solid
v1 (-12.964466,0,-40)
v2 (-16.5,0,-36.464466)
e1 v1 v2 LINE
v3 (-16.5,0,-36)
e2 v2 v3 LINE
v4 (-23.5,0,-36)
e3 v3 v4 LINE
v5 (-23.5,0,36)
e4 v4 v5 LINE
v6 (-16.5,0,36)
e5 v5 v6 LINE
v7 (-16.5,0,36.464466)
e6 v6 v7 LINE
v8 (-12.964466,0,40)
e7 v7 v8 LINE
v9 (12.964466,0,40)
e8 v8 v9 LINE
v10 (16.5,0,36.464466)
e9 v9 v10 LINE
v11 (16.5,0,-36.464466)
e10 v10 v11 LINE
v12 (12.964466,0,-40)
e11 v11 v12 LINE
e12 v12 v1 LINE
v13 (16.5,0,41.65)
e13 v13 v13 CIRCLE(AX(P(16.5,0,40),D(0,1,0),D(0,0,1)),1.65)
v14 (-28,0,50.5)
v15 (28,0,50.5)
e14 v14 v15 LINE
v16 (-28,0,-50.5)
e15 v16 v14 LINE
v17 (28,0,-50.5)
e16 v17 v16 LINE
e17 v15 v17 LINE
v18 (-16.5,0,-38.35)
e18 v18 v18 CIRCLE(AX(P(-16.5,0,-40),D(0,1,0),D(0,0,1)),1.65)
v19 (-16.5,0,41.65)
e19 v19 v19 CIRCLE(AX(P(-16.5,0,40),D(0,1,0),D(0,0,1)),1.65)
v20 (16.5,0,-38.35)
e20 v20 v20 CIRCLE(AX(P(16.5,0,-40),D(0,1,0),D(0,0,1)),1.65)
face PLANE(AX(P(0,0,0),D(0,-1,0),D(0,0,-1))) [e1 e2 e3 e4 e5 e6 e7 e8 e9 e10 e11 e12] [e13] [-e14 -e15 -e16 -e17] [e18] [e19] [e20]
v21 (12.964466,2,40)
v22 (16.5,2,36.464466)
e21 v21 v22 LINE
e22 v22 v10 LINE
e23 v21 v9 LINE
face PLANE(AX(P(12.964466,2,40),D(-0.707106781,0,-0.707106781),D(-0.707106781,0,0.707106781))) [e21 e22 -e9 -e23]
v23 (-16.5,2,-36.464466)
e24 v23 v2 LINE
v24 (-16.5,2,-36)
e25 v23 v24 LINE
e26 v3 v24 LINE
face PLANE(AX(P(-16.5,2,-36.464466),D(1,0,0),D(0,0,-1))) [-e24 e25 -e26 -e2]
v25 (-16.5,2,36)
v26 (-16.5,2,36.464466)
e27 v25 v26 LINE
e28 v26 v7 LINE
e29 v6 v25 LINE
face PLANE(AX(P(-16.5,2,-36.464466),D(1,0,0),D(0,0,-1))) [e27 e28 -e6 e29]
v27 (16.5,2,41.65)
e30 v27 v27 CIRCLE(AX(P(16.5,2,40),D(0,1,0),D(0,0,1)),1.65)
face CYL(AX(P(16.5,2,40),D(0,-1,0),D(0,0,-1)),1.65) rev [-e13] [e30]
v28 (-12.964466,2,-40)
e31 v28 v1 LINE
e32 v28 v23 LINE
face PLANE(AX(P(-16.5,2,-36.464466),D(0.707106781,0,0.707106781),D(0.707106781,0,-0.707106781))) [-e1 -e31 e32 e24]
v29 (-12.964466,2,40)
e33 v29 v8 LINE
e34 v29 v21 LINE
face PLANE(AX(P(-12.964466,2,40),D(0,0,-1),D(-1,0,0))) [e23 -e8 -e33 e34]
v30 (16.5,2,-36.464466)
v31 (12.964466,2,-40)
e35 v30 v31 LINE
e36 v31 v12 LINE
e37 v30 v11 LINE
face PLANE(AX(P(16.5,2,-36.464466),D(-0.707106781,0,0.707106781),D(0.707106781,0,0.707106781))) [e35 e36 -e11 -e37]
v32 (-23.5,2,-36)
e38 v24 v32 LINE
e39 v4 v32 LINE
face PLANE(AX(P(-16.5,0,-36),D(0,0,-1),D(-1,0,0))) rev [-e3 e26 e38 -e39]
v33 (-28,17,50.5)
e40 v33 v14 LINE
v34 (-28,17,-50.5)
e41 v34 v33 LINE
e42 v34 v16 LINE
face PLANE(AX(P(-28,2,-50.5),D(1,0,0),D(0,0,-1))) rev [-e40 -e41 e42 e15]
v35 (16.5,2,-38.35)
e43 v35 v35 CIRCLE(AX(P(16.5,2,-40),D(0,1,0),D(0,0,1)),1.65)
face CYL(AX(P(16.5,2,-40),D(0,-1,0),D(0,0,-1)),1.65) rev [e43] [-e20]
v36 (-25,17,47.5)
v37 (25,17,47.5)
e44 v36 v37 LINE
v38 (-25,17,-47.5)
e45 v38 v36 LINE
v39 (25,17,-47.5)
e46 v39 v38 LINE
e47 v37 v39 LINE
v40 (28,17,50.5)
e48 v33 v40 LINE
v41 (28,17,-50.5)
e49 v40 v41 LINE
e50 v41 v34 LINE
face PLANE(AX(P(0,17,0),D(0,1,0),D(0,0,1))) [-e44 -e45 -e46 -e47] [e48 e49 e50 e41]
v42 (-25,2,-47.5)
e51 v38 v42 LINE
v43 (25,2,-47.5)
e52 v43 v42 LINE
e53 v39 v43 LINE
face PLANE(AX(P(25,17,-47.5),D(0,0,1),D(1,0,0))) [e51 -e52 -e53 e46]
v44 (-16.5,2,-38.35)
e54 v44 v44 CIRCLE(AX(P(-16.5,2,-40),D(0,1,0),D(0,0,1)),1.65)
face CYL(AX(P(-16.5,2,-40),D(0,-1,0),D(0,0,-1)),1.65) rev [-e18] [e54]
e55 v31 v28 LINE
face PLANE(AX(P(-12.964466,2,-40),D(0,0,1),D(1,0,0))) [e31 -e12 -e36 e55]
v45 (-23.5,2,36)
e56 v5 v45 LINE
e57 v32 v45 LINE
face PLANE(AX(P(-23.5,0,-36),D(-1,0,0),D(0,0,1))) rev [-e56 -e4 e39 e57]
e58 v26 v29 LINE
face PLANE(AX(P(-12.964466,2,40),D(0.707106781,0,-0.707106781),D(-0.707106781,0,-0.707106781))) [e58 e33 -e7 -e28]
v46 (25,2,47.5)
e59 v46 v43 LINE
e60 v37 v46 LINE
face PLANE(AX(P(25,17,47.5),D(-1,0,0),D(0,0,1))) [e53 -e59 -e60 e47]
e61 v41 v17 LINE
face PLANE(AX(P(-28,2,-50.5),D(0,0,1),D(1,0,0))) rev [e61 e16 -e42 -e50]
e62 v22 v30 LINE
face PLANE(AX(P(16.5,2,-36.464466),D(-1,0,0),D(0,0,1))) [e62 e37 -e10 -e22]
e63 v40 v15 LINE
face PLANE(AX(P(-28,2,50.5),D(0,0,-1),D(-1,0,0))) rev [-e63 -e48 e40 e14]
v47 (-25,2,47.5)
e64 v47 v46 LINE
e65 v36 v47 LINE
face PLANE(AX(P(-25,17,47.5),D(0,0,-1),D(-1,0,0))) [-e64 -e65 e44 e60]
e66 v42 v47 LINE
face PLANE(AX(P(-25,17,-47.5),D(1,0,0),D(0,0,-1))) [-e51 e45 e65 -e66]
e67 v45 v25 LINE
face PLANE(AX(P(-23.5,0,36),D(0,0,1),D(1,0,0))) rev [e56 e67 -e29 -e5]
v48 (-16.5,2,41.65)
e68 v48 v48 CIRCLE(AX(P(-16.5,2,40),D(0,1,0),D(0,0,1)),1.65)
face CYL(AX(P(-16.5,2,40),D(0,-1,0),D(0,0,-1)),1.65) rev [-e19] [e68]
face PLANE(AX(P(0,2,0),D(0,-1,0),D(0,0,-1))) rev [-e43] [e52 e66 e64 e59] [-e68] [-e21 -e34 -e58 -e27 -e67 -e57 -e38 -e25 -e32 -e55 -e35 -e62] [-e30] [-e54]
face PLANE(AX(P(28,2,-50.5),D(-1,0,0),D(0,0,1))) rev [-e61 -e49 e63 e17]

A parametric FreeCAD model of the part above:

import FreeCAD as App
import Part
import Sketcher

doc = App.newDocument("Part")
body = doc.addObject("PartDesign::Body", "Body")

# Sketch on XZ plane
sketch1 = doc.addObject("Sketcher::SketchObject", "Sketch")
body.addObject(sketch1)
sketch1.AttachmentSupport = (doc.XZ_Plane, [""])
sketch1.MapMode = "FlatFace"
sketch1.addGeometry([
    Part.LineSegment(App.Vector(-28, -50.5, 0), App.Vector(-28, 50.5, 0)),  # 0
    Part.LineSegment(App.Vector(-28, 50.5, 0), App.Vector(28, 50.5, 0)),  # 1
    Part.LineSegment(App.Vector(28, 50.5, 0), App.Vector(28, -50.5, 0)),  # 2
    Part.LineSegment(App.Vector(28, -50.5, 0), App.Vector(-28, -50.5, 0)),  # 3
    Part.Circle(App.Vector(-16.5, 40, 0), App.Vector(0, 0, 1), 1.6),  # 4
    Part.Circle(App.Vector(16.5, 40, 0), App.Vector(0, 0, 1), 1.6),  # 5
    Part.Circle(App.Vector(-16.5, -40, 0), App.Vector(0, 0, 1), 1.6),  # 6
    Part.LineSegment(App.Vector(13, 40, 0), App.Vector(-13, 40, 0)),  # 7
    Part.LineSegment(App.Vector(-13, 40, 0), App.Vector(-16.5, 36.5, 0)),  # 8
    Part.LineSegment(App.Vector(-16.5, 36.5, 0), App.Vector(-16.5, -36.5, 0)),  # 9
    Part.LineSegment(App.Vector(-16.5, -36.5, 0), App.Vector(-13, -40, 0)),  # 10
    Part.LineSegment(App.Vector(-13, -40, 0), App.Vector(13, -40, 0)),  # 11
    Part.LineSegment(App.Vector(13, -40, 0), App.Vector(16.5, -36.5, 0)),  # 12
    Part.LineSegment(App.Vector(16.5, -36.5, 0), App.Vector(16.5, 36.5, 0)),  # 13
    Part.LineSegment(App.Vector(16.5, 36.5, 0), App.Vector(13, 40, 0)),  # 14
    Part.Circle(App.Vector(16.5, -40, 0), App.Vector(0, 0, 1), 1.6),  # 15
], False)
sketch1.addConstraint([
    Sketcher.Constraint("Coincident", 0, 2, 1, 1),
    Sketcher.Constraint("Coincident", 1, 2, 2, 1),
    Sketcher.Constraint("Coincident", 2, 2, 3, 1),
    Sketcher.Constraint("Coincident", 3, 2, 0, 1),
    Sketcher.Constraint("Coincident", 7, 2, 8, 1),
    Sketcher.Constraint("Coincident", 8, 2, 9, 1),
    Sketcher.Constraint("Coincident", 9, 2, 10, 1),
    Sketcher.Constraint("Coincident", 10, 2, 11, 1),
    Sketcher.Constraint("Coincident", 11, 2, 12, 1),
    Sketcher.Constraint("Coincident", 12, 2, 13, 1),
    Sketcher.Constraint("Coincident", 13, 2, 14, 1),
    Sketcher.Constraint("Coincident", 14, 2, 7, 1),
    Sketcher.Constraint("Vertical", 0),
    Sketcher.Constraint("Horizontal", 1),
    Sketcher.Constraint("Vertical", 2),
    Sketcher.Constraint("Horizontal", 3),
    Sketcher.Constraint("Horizontal", 7),
    Sketcher.Constraint("Vertical", 9),
    Sketcher.Constraint("Horizontal", 11),
    Sketcher.Constraint("Vertical", 13),
    Sketcher.Constraint("Equal", 4, 5),
    Sketcher.Constraint("Equal", 5, 6),
    Sketcher.Constraint("Equal", 6, 15),
    Sketcher.Constraint("Symmetric", 5, 3, 6, 3, -1, 1),
    Sketcher.Constraint("Symmetric", 4, 3, 15, 3, -1, 1),
    Sketcher.Constraint("Symmetric", 0, 2, 2, 2, -1, 1),
    Sketcher.Constraint("Symmetric", 7, 2, 11, 2, -1, 1),
    Sketcher.Constraint("Symmetric", 8, 2, 12, 2, -1, 1),
    Sketcher.Constraint("Symmetric", 4, 3, 5, 3, -2),
    Sketcher.Constraint("Perpendicular", 8, 10),
    Sketcher.Constraint("Perpendicular", 12, 14),
    Sketcher.Constraint("Horizontal", 5, 3, 7, 2),
    Sketcher.Constraint("Horizontal", 9, 2, 12, 2),
    Sketcher.Constraint("Horizontal", 8, 2, 13, 2),
    Sketcher.Constraint("Vertical", 6, 3, 8, 2),
    Sketcher.Constraint("Vertical", 7, 2, 10, 2),
    Sketcher.Constraint("Diameter", 4, 3.3),
    Sketcher.Constraint("DistanceX", 1, 1, 1, 2, 56.0),
    Sketcher.Constraint("DistanceY", 0, 1, 0, 2, 101.0),
    Sketcher.Constraint("Distance", 8, 5.0),
    Sketcher.Constraint("DistanceY", -1, 1, 4, 3, 40.0),
    Sketcher.Constraint("DistanceX", 4, 3, 5, 3, 33.0),
])
pad1 = doc.addObject("PartDesign::Pad", "Pad")
body.addObject(pad1)
pad1.Profile = sketch1
pad1.Length = 2
pad1.Reversed = True

# Sketch on XZ plane
sketch2 = doc.addObject("Sketcher::SketchObject", "Sketch001")
body.addObject(sketch2)
sketch2.AttachmentSupport = (doc.XZ_Plane, [""])
sketch2.MapMode = "FlatFace"
sketch2.AttachmentOffset = App.Placement(App.Vector(0, 0, -2), App.Rotation())
sketch2.addGeometry([
    Part.LineSegment(App.Vector(-28, -50, 0), App.Vector(-28, 50, 0)),  # 0
    Part.LineSegment(App.Vector(-28, 50, 0), App.Vector(28, 50, 0)),  # 1
    Part.LineSegment(App.Vector(28, 50, 0), App.Vector(28, -50, 0)),  # 2
    Part.LineSegment(App.Vector(28, -50, 0), App.Vector(-28, -50, 0)),  # 3
    Part.LineSegment(App.Vector(25, 48, 0), App.Vector(-25, 48, 0)),  # 4
    Part.LineSegment(App.Vector(-25, 48, 0), App.Vector(-25, -48, 0)),  # 5
    Part.LineSegment(App.Vector(-25, -48, 0), App.Vector(25, -48, 0)),  # 6
    Part.LineSegment(App.Vector(25, -48, 0), App.Vector(25, 48, 0)),  # 7
], False)
sketch2.addConstraint([
    Sketcher.Constraint("Coincident", 0, 2, 1, 1),
    Sketcher.Constraint("Coincident", 1, 2, 2, 1),
    Sketcher.Constraint("Coincident", 2, 2, 3, 1),
    Sketcher.Constraint("Coincident", 3, 2, 0, 1),
    Sketcher.Constraint("Coincident", 4, 2, 5, 1),
    Sketcher.Constraint("Coincident", 5, 2, 6, 1),
    Sketcher.Constraint("Coincident", 6, 2, 7, 1),
    Sketcher.Constraint("Coincident", 7, 2, 4, 1),
    Sketcher.Constraint("Vertical", 0),
    Sketcher.Constraint("Horizontal", 1),
    Sketcher.Constraint("Vertical", 2),
    Sketcher.Constraint("Horizontal", 3),
    Sketcher.Constraint("Horizontal", 4),
    Sketcher.Constraint("Vertical", 5),
    Sketcher.Constraint("Horizontal", 6),
    Sketcher.Constraint("Vertical", 7),
    Sketcher.Constraint("Symmetric", 0, 2, 2, 2, -1, 1),
    Sketcher.Constraint("Symmetric", 4, 2, 6, 2, -1, 1),
    Sketcher.Constraint("DistanceX", 1, 1, 1, 2, 56.0),
    Sketcher.Constraint("DistanceX", 4, 2, 4, 1, 50.0),
    Sketcher.Constraint("DistanceY", 0, 1, 0, 2, 101.0),
    Sketcher.Constraint("DistanceY", 5, 2, 5, 1, 95.0),
])
pad2 = doc.addObject("PartDesign::Pad", "Pad001")
body.addObject(pad2)
pad2.Profile = sketch2
pad2.Length = 15
pad2.Reversed = True

# Sketch on XZ plane
sketch3 = doc.addObject("Sketcher::SketchObject", "Sketch002")
body.addObject(sketch3)
sketch3.AttachmentSupport = (doc.XZ_Plane, [""])
sketch3.MapMode = "FlatFace"
sketch3.AttachmentOffset = App.Placement(App.Vector(0, 0, -2), App.Rotation())
sketch3.addGeometry([
    Part.LineSegment(App.Vector(-24, -36, 0), App.Vector(-24, 36, 0)),
    Part.LineSegment(App.Vector(-24, 36, 0), App.Vector(-16, 36, 0)),
    Part.LineSegment(App.Vector(-16, 36, 0), App.Vector(-16, -36, 0)),
    Part.LineSegment(App.Vector(-16, -36, 0), App.Vector(-24, -36, 0)),
], False)
sketch3.addConstraint([
    Sketcher.Constraint("Coincident", 0, 2, 1, 1),
    Sketcher.Constraint("Coincident", 1, 2, 2, 1),
    Sketcher.Constraint("Coincident", 2, 2, 3, 1),
    Sketcher.Constraint("Coincident", 3, 2, 0, 1),
    Sketcher.Constraint("Vertical", 0),
    Sketcher.Constraint("Horizontal", 1),
    Sketcher.Constraint("Vertical", 2),
    Sketcher.Constraint("Horizontal", 3),
    Sketcher.Constraint("DistanceX", 1, 1, 1, 2, 7.0),
    Sketcher.Constraint("DistanceY", 0, 1, 0, 2, 72.0),
    Sketcher.Constraint("DistanceY", -1, 1, 0, 2, 36.0),
    Sketcher.Constraint("DistanceX", 0, 2, -1, 1, 23.5),
])
pocket1 = doc.addObject("PartDesign::Pocket", "Pocket")
body.addObject(pocket1)
pocket1.Profile = sketch3
pocket1.Type = "ThroughAll"
pocket1.Reversed = True

doc.recompute()
